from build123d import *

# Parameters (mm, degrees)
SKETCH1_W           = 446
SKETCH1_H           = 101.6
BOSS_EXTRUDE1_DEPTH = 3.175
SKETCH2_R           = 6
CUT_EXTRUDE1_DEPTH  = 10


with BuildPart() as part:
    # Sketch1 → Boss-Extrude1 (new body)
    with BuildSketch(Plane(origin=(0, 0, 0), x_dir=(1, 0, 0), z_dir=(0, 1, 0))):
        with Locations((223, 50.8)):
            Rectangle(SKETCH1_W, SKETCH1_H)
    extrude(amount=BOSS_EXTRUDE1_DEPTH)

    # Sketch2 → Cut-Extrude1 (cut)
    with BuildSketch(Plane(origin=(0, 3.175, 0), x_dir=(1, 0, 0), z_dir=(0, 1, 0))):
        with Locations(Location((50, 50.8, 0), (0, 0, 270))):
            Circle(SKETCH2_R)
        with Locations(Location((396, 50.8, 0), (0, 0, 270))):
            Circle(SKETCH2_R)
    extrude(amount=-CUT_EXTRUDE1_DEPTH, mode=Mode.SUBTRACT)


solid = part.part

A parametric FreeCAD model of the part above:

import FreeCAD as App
import Part
import Sketcher
Q = App.Units.Quantity

doc = App.newDocument("Part")
body = doc.addObject("PartDesign::Body", "Body")

# Sketch on XZ plane
sketch1 = doc.addObject("Sketcher::SketchObject", "Sketch")
body.addObject(sketch1)
sketch1.AttachmentSupport = (doc.XZ_Plane, [""])
sketch1.MapMode = "FlatFace"
sketch1.addGeometry([
    Part.LineSegment(App.Vector(0, -101.6, 0), App.Vector(0, 0, 0)),
    Part.LineSegment(App.Vector(0, 0, 0), App.Vector(446, 0, 0)),
    Part.LineSegment(App.Vector(446, 0, 0), App.Vector(446, -101.6, 0)),
    Part.LineSegment(App.Vector(446, -101.6, 0), App.Vector(0, -101.6, 0)),
], False)
sketch1.addConstraint([
    Sketcher.Constraint("Coincident", 0, 2, 1, 1),
    Sketcher.Constraint("Coincident", 1, 2, 2, 1),
    Sketcher.Constraint("Coincident", 2, 2, 3, 1),
    Sketcher.Constraint("Coincident", 3, 2, 0, 1),
    Sketcher.Constraint("Vertical", 0),
    Sketcher.Constraint("Horizontal", 1),
    Sketcher.Constraint("Vertical", 2),
    Sketcher.Constraint("Horizontal", 3),
    Sketcher.Constraint("Coincident", 0, 2, -1, 1),
    Sketcher.Constraint("DistanceX", 1, 1, 1, 2, Q("446 mm")),
    Sketcher.Constraint("DistanceY", 0, 1, 0, 2, Q("101.6 mm")),
])
pad1 = doc.addObject("PartDesign::Pad", "Pad")
body.addObject(pad1)
pad1.Profile = sketch1
pad1.Length = 3.175
pad1.Reversed = True

# Sketch on XZ plane
sketch2 = doc.addObject("Sketcher::SketchObject", "Sketch001")
body.addObject(sketch2)
sketch2.AttachmentSupport = (doc.XZ_Plane, [""])
sketch2.MapMode = "FlatFace"
sketch2.AttachmentOffset = App.Placement(App.Vector(0, 0, -3.175), App.Rotation())
sketch2.addGeometry([
    Part.Circle(App.Vector(50, -50.8, 0), App.Vector(0, 0, 1), 6),
    Part.Circle(App.Vector(396, -50.8, 0), App.Vector(0, 0, 1), 6),
], False)
sketch2.addConstraint([
    Sketcher.Constraint("Equal", 0, 1),
    Sketcher.Constraint("Horizontal", 0, 3, 1, 3),
    Sketcher.Constraint("Diameter", 0, Q("12 mm")),
    Sketcher.Constraint("DistanceX", -1, 1, 0, 3, Q("50 mm")),
    Sketcher.Constraint("DistanceX", -1, 1, 1, 3, Q("396 mm")),
    Sketcher.Constraint("DistanceY", 0, 3, -1, 1, Q("50.8 mm")),
])
pocket1 = doc.addObject("PartDesign::Pocket", "Pocket")
body.addObject(pocket1)
pocket1.Profile = sketch2
pocket1.Length = 10
pocket1.Reversed = True

doc.recompute()
